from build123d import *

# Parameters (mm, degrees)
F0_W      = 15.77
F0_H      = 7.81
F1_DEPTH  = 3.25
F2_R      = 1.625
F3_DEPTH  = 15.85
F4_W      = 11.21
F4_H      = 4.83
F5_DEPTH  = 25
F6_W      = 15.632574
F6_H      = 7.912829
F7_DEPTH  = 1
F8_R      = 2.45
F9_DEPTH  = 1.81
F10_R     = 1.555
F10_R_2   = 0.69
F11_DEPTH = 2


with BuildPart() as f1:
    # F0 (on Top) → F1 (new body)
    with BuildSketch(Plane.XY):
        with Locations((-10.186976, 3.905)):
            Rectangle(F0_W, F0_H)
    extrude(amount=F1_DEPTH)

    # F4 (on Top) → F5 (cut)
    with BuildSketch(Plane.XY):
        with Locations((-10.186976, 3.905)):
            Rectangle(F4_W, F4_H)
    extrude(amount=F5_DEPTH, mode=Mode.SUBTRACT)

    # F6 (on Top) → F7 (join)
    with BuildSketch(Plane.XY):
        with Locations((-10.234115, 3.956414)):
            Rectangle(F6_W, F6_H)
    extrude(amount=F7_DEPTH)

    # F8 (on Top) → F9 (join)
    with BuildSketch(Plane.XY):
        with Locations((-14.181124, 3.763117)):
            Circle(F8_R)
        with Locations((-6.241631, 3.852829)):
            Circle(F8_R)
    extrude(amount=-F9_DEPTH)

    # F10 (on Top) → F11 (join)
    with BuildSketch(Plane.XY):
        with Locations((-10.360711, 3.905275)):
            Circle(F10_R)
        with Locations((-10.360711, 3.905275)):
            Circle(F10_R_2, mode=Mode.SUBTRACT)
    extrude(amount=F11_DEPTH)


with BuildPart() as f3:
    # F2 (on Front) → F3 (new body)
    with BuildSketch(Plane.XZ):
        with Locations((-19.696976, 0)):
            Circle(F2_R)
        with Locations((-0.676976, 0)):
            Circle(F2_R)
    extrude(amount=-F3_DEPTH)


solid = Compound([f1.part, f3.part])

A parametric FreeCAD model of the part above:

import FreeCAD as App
import Part
import Sketcher
from FreeCAD import Vector

doc = App.newDocument("Part")
body = doc.addObject("PartDesign::Body", "Body")

# Sketch on XY plane
sketch1 = body.newObject("Sketcher::SketchObject", "Sketch")
sketch1.AttachmentSupport = (doc.getObject("XY_Plane"), [""])
sketch1.MapMode = "FlatFace"
sketch1.addGeometry(Part.LineSegment(Vector(-18, 8, 0), Vector(-18, 0, 0)), False)
sketch1.addGeometry(Part.LineSegment(Vector(-18, 0, 0), Vector(-2, 0, 0)), False)
sketch1.addGeometry(Part.LineSegment(Vector(-2, 0, 0), Vector(-2, 8, 0)), False)
sketch1.addGeometry(Part.LineSegment(Vector(-2, 8, 0), Vector(-18, 8, 0)), False)
sketch1.addConstraint(Sketcher.Constraint("Coincident", 0, 2, 1, 1))
sketch1.addConstraint(Sketcher.Constraint("Coincident", 1, 2, 2, 1))
sketch1.addConstraint(Sketcher.Constraint("Coincident", 2, 2, 3, 1))
sketch1.addConstraint(Sketcher.Constraint("Coincident", 3, 2, 0, 1))
sketch1.addConstraint(Sketcher.Constraint("Vertical", 0))
sketch1.addConstraint(Sketcher.Constraint("Horizontal", 1))
sketch1.addConstraint(Sketcher.Constraint("Vertical", 2))
sketch1.addConstraint(Sketcher.Constraint("Horizontal", 3))
sketch1.addConstraint(Sketcher.Constraint("PointOnObject", 0, 2, -1))
sketch1.addConstraint(Sketcher.Constraint("DistanceX", 1, 1, 1, 2, 15.77))
sketch1.addConstraint(Sketcher.Constraint("DistanceY", 0, 2, 0, 1, 7.81))
sketch1.addConstraint(Sketcher.Constraint("DistanceX", 0, 2, -1, 1, 18.071976))
pad1 = body.newObject("PartDesign::Pad", "Pad")
pad1.Profile = sketch1
pad1.Length = 3.25

# Sketch on XY plane
sketch2 = body.newObject("Sketcher::SketchObject", "Sketch001")
sketch2.AttachmentSupport = (doc.getObject("XY_Plane"), [""])
sketch2.MapMode = "FlatFace"
sketch2.addGeometry(Part.LineSegment(Vector(-15.8, 6.3, 0), Vector(-15.8, 1.5, 0)), False)
sketch2.addGeometry(Part.LineSegment(Vector(-15.8, 1.5, 0), Vector(-4.6, 1.5, 0)), False)
sketch2.addGeometry(Part.LineSegment(Vector(-4.6, 1.5, 0), Vector(-4.6, 6.3, 0)), False)
sketch2.addGeometry(Part.LineSegment(Vector(-4.6, 6.3, 0), Vector(-15.8, 6.3, 0)), False)
sketch2.addConstraint(Sketcher.Constraint("Coincident", 0, 2, 1, 1))
sketch2.addConstraint(Sketcher.Constraint("Coincident", 1, 2, 2, 1))
sketch2.addConstraint(Sketcher.Constraint("Coincident", 2, 2, 3, 1))
sketch2.addConstraint(Sketcher.Constraint("Coincident", 3, 2, 0, 1))
sketch2.addConstraint(Sketcher.Constraint("Vertical", 0))
sketch2.addConstraint(Sketcher.Constraint("Horizontal", 1))
sketch2.addConstraint(Sketcher.Constraint("Vertical", 2))
sketch2.addConstraint(Sketcher.Constraint("Horizontal", 3))
sketch2.addConstraint(Sketcher.Constraint("DistanceX", 1, 1, 1, 2, 11.21))
sketch2.addConstraint(Sketcher.Constraint("DistanceY", 0, 2, 0, 1, 4.83))
sketch2.addConstraint(Sketcher.Constraint("DistanceY", -1, 1, 0, 2, 1.49))
sketch2.addConstraint(Sketcher.Constraint("DistanceX", 0, 2, -1, 1, 15.791976))
pocket1 = body.newObject("PartDesign::Pocket", "Pocket")
pocket1.Profile = sketch2
pocket1.Length = 25
pocket1.Reversed = True

# Sketch on XY plane
sketch3 = body.newObject("Sketcher::SketchObject", "Sketch002")
sketch3.AttachmentSupport = (doc.getObject("XY_Plane"), [""])
sketch3.MapMode = "FlatFace"
sketch3.addGeometry(Part.LineSegment(Vector(-18, 8, 0), Vector(-18, 0, 0)), False)
sketch3.addGeometry(Part.LineSegment(Vector(-18, 0, 0), Vector(-2, 0, 0)), False)
sketch3.addGeometry(Part.LineSegment(Vector(-2, 0, 0), Vector(-2, 8, 0)), False)
sketch3.addGeometry(Part.LineSegment(Vector(-2, 8, 0), Vector(-18, 8, 0)), False)
sketch3.addConstraint(Sketcher.Constraint("Coincident", 0, 2, 1, 1))
sketch3.addConstraint(Sketcher.Constraint("Coincident", 1, 2, 2, 1))
sketch3.addConstraint(Sketcher.Constraint("Coincident", 2, 2, 3, 1))
sketch3.addConstraint(Sketcher.Constraint("Coincident", 3, 2, 0, 1))
sketch3.addConstraint(Sketcher.Constraint("Vertical", 0))
sketch3.addConstraint(Sketcher.Constraint("Horizontal", 1))
sketch3.addConstraint(Sketcher.Constraint("Vertical", 2))
sketch3.addConstraint(Sketcher.Constraint("Horizontal", 3))
sketch3.addConstraint(Sketcher.Constraint("PointOnObject", 0, 2, -1))
sketch3.addConstraint(Sketcher.Constraint("DistanceY", 0, 2, 0, 1, 7.912829))
sketch3.addConstraint(Sketcher.Constraint("DistanceX", 0, 2, -1, 1, 18.050402))
sketch3.addConstraint(Sketcher.Constraint("DistanceX", 1, 1, 1, 2, 15.632574))
pad2 = body.newObject("PartDesign::Pad", "Pad001")
pad2.Profile = sketch3
pad2.Length = 1

# Sketch on XY plane
sketch4 = body.newObject("Sketcher::SketchObject", "Sketch003")
sketch4.AttachmentSupport = (doc.getObject("XY_Plane"), [""])
sketch4.MapMode = "FlatFace"
sketch4.addGeometry(Part.Circle(Vector(-14.2, 3.8, 0), Vector(0, 0, 1), 2.5), False)
sketch4.addGeometry(Part.Circle(Vector(-6.2, 3.9, 0), Vector(0, 0, 1), 2.5), False)
sketch4.addConstraint(Sketcher.Constraint("Equal", 0, 1))
sketch4.addConstraint(Sketcher.Constraint("Diameter", 0, 4.9))
sketch4.addConstraint(Sketcher.Constraint("DistanceX", 1, 3, -1, 1, 6.241631))
sketch4.addConstraint(Sketcher.Constraint("DistanceY", -1, 1, 1, 3, 3.852829))
sketch4.addConstraint(Sketcher.Constraint("DistanceX", 0, 3, -1, 1, 14.181124))
sketch4.addConstraint(Sketcher.Constraint("DistanceY", -1, 1, 0, 3, 3.763117))
pad3 = body.newObject("PartDesign::Pad", "Pad002")
pad3.Profile = sketch4
pad3.Length = 1.81
pad3.Reversed = True

# Sketch on XY plane
sketch5 = body.newObject("Sketcher::SketchObject", "Sketch004")
sketch5.AttachmentSupport = (doc.getObject("XY_Plane"), [""])
sketch5.MapMode = "FlatFace"
sketch5.addGeometry(Part.Circle(Vector(-10.4, 3.9, 0), Vector(0, 0, 1), 1.6), False)
sketch5.addGeometry(Part.Circle(Vector(-10.4, 3.9, 0), Vector(0, 0, 1), 0.7), False)
sketch5.addConstraint(Sketcher.Constraint("Coincident", 1, 3, 0, 3))
sketch5.addConstraint(Sketcher.Constraint("Diameter", 0, 3.11))
sketch5.addConstraint(Sketcher.Constraint("Diameter", 1, 1.38))
sketch5.addConstraint(Sketcher.Constraint("DistanceX", 0, 3, -1, 1, 10.360711))
sketch5.addConstraint(Sketcher.Constraint("DistanceY", -1, 1, 0, 3, 3.905275))
pad4 = body.newObject("PartDesign::Pad", "Pad003")
pad4.Profile = sketch5
pad4.Length = 2
body2 = doc.addObject("PartDesign::Body", "Body001")
body2.AllowCompound = True

# Sketch on XZ plane
sketch6 = body2.newObject("Sketcher::SketchObject", "Sketch005")
sketch6.AttachmentSupport = (doc.getObject("XZ_Plane001"), [""])
sketch6.MapMode = "FlatFace"
sketch6.addGeometry(Part.Circle(Vector(-19.7, 0, 0), Vector(0, 0, 1), 1.6), False)
sketch6.addGeometry(Part.Circle(Vector(-0.7, 0, 0), Vector(0, 0, 1), 1.6), False)
sketch6.addConstraint(Sketcher.Constraint("Equal", 0, 1))
sketch6.addConstraint(Sketcher.Constraint("PointOnObject", 0, 3, -1))
sketch6.addConstraint(Sketcher.Constraint("PointOnObject", 1, 3, -1))
sketch6.addConstraint(Sketcher.Constraint("Diameter", 0, 3.25))
sketch6.addConstraint(Sketcher.Constraint("DistanceX", 0, 3, 1, 3, 19.02))
sketch6.addConstraint(Sketcher.Constraint("DistanceX", 0, 3, -1, 1, 19.696976))
pad5 = body2.newObject("PartDesign::Pad", "Pad004")
pad5.Profile = sketch6
pad5.Length = 15.85
pad5.Reversed = True

doc.recompute()
